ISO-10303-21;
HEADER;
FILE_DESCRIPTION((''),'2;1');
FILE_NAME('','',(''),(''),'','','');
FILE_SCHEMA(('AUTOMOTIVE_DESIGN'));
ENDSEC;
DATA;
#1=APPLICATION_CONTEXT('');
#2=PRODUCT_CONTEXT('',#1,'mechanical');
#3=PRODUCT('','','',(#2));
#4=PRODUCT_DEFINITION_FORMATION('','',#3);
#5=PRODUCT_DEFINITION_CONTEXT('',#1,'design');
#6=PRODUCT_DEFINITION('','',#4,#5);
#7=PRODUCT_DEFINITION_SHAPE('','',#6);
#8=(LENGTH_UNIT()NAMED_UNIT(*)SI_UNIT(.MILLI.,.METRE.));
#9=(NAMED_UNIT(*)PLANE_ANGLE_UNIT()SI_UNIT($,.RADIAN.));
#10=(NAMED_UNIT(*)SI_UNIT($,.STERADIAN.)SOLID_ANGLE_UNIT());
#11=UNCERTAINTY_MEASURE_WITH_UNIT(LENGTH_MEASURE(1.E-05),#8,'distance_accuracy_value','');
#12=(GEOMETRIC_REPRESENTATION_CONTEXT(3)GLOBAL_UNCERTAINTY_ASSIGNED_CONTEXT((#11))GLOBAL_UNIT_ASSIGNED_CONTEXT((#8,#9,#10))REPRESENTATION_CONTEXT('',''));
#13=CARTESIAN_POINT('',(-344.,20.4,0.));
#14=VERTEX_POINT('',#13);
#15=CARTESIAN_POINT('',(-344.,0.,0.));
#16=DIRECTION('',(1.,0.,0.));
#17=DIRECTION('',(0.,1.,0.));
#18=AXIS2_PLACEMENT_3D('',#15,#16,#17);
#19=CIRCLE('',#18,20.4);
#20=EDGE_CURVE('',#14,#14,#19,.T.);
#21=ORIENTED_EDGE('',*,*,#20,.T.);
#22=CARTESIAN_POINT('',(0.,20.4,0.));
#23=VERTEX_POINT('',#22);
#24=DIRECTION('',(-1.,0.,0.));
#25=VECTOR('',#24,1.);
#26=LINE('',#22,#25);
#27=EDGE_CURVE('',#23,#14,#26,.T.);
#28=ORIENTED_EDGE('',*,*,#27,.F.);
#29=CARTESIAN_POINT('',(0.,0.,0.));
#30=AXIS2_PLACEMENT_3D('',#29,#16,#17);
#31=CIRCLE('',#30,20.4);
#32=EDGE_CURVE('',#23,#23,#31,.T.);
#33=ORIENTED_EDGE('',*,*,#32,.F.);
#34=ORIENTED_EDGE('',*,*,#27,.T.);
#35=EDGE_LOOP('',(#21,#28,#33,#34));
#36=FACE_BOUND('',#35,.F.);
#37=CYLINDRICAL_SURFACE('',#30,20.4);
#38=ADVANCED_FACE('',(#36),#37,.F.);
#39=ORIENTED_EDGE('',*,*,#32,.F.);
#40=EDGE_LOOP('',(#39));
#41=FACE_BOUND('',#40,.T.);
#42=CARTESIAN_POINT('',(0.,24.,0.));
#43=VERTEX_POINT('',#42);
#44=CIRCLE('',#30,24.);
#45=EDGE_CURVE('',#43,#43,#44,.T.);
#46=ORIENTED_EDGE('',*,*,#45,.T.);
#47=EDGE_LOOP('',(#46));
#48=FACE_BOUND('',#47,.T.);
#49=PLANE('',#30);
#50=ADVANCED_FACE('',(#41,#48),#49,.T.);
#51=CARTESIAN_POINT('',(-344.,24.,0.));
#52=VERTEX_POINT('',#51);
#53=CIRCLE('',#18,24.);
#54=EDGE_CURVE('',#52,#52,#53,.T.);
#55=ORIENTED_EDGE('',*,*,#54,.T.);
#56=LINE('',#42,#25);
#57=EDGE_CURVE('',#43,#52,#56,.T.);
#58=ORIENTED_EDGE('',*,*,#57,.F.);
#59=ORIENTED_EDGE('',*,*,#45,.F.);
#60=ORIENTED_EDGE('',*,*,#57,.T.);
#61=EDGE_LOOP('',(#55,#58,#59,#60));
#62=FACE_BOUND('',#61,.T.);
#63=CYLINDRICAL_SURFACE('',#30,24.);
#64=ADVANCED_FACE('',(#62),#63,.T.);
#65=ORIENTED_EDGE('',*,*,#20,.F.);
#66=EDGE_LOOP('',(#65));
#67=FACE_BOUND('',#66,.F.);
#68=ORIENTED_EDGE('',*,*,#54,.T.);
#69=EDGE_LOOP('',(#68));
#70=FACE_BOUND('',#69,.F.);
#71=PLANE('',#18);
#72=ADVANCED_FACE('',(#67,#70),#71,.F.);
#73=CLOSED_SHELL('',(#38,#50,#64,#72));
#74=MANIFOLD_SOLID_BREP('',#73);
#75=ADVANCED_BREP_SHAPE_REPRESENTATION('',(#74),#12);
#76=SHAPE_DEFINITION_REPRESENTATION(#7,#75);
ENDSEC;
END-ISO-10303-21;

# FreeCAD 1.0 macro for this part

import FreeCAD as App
import Part
import Sketcher
from FreeCAD import Vector
Q = App.Units.Quantity

doc = App.newDocument("Part")
body = doc.addObject("PartDesign::Body", "Body")

# Sketch on YZ plane
sketch1 = body.newObject("Sketcher::SketchObject", "Sketch")
sketch1.AttachmentSupport = (doc.getObject("YZ_Plane"), [""])
sketch1.MapMode = "FlatFace"
sketch1.addGeometry([
    Part.Circle(Vector(0, 0, 0), Vector(0, 0, 1), 24),
    Part.Circle(Vector(0, 0, 0), Vector(0, 0, 1), 20),
], False)
sketch1.addConstraint([
    Sketcher.Constraint("Coincident", 0, 3, -1, 1),
    Sketcher.Constraint("Coincident", 1, 3, -1, 1),
    Sketcher.Constraint("Diameter", 0, Q("48 mm")),
    Sketcher.Constraint("Diameter", 1, Q("40.8 mm")),
])
pad1 = body.newObject("PartDesign::Pad", "Pad")
pad1.Profile = sketch1
pad1.Length = 344
pad1.Reversed = True

doc.recompute()
